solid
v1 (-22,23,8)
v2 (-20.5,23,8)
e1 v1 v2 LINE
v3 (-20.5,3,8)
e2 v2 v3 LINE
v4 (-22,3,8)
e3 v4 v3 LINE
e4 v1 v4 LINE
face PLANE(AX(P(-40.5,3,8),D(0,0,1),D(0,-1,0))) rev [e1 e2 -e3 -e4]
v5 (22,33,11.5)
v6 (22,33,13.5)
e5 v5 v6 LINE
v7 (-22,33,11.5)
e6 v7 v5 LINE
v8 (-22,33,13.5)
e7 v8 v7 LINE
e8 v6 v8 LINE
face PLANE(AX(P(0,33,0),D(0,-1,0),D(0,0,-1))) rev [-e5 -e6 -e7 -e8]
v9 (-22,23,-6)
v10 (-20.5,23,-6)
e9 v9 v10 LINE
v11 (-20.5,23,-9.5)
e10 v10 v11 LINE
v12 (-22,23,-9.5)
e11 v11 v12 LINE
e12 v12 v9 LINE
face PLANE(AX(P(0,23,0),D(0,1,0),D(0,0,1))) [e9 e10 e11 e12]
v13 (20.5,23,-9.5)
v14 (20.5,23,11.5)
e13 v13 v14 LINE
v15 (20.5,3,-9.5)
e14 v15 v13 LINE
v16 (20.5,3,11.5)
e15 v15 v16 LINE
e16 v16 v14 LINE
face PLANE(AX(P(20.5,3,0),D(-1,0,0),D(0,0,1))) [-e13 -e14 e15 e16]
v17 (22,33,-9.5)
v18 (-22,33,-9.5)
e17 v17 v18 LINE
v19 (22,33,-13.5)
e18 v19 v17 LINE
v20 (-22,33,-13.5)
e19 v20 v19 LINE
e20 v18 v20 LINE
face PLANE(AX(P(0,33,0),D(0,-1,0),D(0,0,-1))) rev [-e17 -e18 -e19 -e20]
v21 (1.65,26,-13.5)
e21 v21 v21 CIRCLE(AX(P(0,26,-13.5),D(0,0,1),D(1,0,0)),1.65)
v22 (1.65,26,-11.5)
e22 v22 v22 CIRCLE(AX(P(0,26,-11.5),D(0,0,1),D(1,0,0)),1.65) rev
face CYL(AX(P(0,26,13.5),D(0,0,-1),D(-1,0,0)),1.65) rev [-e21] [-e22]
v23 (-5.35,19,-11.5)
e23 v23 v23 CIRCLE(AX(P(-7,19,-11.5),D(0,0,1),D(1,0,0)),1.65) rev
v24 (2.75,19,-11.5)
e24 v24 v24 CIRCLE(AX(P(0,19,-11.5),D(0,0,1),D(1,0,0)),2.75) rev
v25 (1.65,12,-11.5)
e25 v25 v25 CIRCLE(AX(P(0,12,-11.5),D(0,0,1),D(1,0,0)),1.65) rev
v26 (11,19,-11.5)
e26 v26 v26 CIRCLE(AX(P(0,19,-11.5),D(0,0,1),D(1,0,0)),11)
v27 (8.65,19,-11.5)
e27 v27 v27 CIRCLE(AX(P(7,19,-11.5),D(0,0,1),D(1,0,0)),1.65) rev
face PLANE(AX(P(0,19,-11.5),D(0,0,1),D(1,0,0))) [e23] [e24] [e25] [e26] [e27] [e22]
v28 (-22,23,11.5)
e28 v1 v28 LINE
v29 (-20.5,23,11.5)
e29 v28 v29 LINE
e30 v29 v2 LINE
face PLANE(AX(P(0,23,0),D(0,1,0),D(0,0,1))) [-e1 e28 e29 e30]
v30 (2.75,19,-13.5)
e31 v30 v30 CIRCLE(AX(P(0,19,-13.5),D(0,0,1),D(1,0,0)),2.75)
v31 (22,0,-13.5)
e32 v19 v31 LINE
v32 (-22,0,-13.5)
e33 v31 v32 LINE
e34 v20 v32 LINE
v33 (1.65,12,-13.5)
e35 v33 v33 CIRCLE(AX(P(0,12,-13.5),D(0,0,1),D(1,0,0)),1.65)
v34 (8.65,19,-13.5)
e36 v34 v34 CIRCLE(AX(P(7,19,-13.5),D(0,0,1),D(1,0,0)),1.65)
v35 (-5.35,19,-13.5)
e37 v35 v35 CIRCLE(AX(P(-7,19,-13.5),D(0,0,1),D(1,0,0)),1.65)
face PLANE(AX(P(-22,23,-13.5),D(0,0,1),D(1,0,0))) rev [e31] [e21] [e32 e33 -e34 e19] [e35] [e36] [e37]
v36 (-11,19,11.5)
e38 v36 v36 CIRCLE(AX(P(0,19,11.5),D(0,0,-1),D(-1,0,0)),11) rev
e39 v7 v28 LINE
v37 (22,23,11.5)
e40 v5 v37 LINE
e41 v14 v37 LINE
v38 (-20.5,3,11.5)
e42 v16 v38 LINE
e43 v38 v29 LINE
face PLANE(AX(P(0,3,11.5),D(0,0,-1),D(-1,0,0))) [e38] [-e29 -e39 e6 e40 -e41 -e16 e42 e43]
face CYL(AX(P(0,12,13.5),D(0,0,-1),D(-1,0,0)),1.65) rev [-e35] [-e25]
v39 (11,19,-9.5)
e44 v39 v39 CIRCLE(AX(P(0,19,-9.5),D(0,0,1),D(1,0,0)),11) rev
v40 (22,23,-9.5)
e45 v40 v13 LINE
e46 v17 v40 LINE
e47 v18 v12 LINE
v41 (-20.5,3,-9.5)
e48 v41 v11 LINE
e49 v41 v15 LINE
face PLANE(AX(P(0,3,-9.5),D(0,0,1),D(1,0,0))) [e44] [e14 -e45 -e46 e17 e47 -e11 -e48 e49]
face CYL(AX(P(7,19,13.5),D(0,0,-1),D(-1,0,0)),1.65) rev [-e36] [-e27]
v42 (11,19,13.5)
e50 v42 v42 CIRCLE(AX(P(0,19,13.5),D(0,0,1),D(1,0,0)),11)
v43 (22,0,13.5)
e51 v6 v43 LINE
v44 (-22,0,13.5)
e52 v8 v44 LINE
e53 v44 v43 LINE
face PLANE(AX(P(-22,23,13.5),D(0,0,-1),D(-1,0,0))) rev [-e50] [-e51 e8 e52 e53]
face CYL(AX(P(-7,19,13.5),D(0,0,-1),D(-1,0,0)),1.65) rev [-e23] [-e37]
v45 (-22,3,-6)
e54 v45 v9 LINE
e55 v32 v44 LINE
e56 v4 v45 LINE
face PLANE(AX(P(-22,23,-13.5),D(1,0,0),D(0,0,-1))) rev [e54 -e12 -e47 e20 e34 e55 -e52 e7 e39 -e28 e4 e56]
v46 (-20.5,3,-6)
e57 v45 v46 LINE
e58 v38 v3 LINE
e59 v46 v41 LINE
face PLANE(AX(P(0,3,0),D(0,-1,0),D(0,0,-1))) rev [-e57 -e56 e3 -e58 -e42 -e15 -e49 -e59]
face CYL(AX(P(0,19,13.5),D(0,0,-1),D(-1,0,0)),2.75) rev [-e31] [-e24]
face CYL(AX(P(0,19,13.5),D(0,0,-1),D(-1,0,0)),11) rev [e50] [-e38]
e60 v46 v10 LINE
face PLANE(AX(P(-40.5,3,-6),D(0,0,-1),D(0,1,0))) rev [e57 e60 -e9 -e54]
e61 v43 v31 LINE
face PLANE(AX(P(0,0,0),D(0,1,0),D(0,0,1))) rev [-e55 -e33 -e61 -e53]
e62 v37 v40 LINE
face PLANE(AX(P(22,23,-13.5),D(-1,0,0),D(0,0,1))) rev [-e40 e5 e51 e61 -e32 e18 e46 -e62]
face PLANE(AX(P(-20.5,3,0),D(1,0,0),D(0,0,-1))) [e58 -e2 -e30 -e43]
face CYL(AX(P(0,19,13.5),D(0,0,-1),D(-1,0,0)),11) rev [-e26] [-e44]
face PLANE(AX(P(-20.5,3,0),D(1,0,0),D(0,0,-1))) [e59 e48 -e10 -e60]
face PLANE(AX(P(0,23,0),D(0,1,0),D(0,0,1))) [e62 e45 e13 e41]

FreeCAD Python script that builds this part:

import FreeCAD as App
import Part
import Sketcher
from FreeCAD import Vector
Q = App.Units.Quantity

doc = App.newDocument("Part")
body = doc.addObject("PartDesign::Body", "Body")

# Sketch on XZ plane
sketch1 = body.newObject("Sketcher::SketchObject", "Sketch")
sketch1.AttachmentSupport = (doc.getObject("XZ_Plane"), [""])
sketch1.MapMode = "FlatFace"
sketch1.addGeometry([
    Part.LineSegment(Vector(-22, -14, 0), Vector(-22, 14, 0)),
    Part.LineSegment(Vector(-22, 14, 0), Vector(22, 14, 0)),
    Part.LineSegment(Vector(22, 14, 0), Vector(22, -14, 0)),
    Part.LineSegment(Vector(22, -14, 0), Vector(-22, -14, 0)),
], False)
sketch1.addConstraint([
    Sketcher.Constraint("Coincident", 0, 2, 1, 1),
    Sketcher.Constraint("Coincident", 1, 2, 2, 1),
    Sketcher.Constraint("Coincident", 2, 2, 3, 1),
    Sketcher.Constraint("Coincident", 3, 2, 0, 1),
    Sketcher.Constraint("Vertical", 0),
    Sketcher.Constraint("Horizontal", 1),
    Sketcher.Constraint("Vertical", 2),
    Sketcher.Constraint("Horizontal", 3),
    Sketcher.Constraint("Symmetric", 0, 2, 2, 2, -1, 1),
    Sketcher.Constraint("DistanceX", 1, 1, 1, 2, Q("44 mm")),
    Sketcher.Constraint("DistanceY", 0, 1, 0, 2, Q("27 mm")),
])
pad1 = body.newObject("PartDesign::Pad", "Pad")
pad1.Profile = sketch1
pad1.Length = 23
pad1.Reversed = True

# Sketch on XZ plane
sketch2 = body.newObject("Sketcher::SketchObject", "Sketch001")
sketch2.AttachmentSupport = (doc.getObject("XZ_Plane"), [""])
sketch2.MapMode = "FlatFace"
sketch2.AttachmentOffset = App.Placement(Vector(0, 0, -23), App.Rotation())
sketch2.addGeometry([
    Part.LineSegment(Vector(-20, -10, 0), Vector(-20, 12, 0)),
    Part.LineSegment(Vector(-20, 12, 0), Vector(20, 12, 0)),
    Part.LineSegment(Vector(20, 12, 0), Vector(20, -10, 0)),
    Part.LineSegment(Vector(20, -10, 0), Vector(-20, -10, 0)),
], False)
sketch2.addConstraint([
    Sketcher.Constraint("Coincident", 0, 2, 1, 1),
    Sketcher.Constraint("Coincident", 1, 2, 2, 1),
    Sketcher.Constraint("Coincident", 2, 2, 3, 1),
    Sketcher.Constraint("Coincident", 3, 2, 0, 1),
    Sketcher.Constraint("Vertical", 0),
    Sketcher.Constraint("Horizontal", 1),
    Sketcher.Constraint("Vertical", 2),
    Sketcher.Constraint("Horizontal", 3),
    Sketcher.Constraint("DistanceX", 1, 1, 1, 2, Q("41 mm")),
    Sketcher.Constraint("DistanceY", 0, 1, 0, 2, Q("21 mm")),
    Sketcher.Constraint("DistanceX", 0, 2, -1, 1, Q("20.5 mm")),
    Sketcher.Constraint("DistanceY", -1, 1, 0, 2, Q("11.5 mm")),
])
pocket1 = body.newObject("PartDesign::Pocket", "Pocket")
pocket1.Profile = sketch2
pocket1.Length = 20
pocket1.Reversed = True

# Sketch on YZ plane
sketch3 = body.newObject("Sketcher::SketchObject", "Sketch002")
sketch3.AttachmentSupport = (doc.getObject("YZ_Plane"), [""])
sketch3.MapMode = "FlatFace"
sketch3.AttachmentOffset = App.Placement(Vector(0, 0, -20.5), App.Rotation())
sketch3.addGeometry([
    Part.LineSegment(Vector(23, 8, 0), Vector(3, 8, 0)),
    Part.LineSegment(Vector(3, 8, 0), Vector(3, -6, 0)),
    Part.LineSegment(Vector(3, -6, 0), Vector(23, -6, 0)),
    Part.LineSegment(Vector(23, -6, 0), Vector(23, 8, 0)),
], False)
sketch3.addConstraint([
    Sketcher.Constraint("Coincident", 0, 2, 1, 1),
    Sketcher.Constraint("Coincident", 1, 2, 2, 1),
    Sketcher.Constraint("Coincident", 2, 2, 3, 1),
    Sketcher.Constraint("Coincident", 3, 2, 0, 1),
    Sketcher.Constraint("Horizontal", 0),
    Sketcher.Constraint("Vertical", 1),
    Sketcher.Constraint("Horizontal", 2),
    Sketcher.Constraint("Vertical", 3),
    Sketcher.Constraint("DistanceX", 0, 2, 0, 1, Q("20 mm")),
    Sketcher.Constraint("DistanceY", 1, 2, 1, 1, Q("14 mm")),
    Sketcher.Constraint("DistanceX", -1, 1, 0, 2, Q("3 mm")),
    Sketcher.Constraint("DistanceY", -1, 1, 0, 2, Q("8 mm")),
])
pocket2 = body.newObject("PartDesign::Pocket", "Pocket001")
pocket2.Profile = sketch3
pocket2.Length = 20

# Sketch on XZ plane
sketch4 = body.newObject("Sketcher::SketchObject", "Sketch003")
sketch4.AttachmentSupport = (doc.getObject("XZ_Plane"), [""])
sketch4.MapMode = "FlatFace"
sketch4.AttachmentOffset = App.Placement(Vector(0, 0, -23), App.Rotation())
sketch4.addGeometry([
    Part.LineSegment(Vector(-22, -13.5, 0), Vector(-22, -9.5, 0)),  # 0
    Part.LineSegment(Vector(-22, -9.5, 0), Vector(22, -9.5, 0)),  # 1
    Part.LineSegment(Vector(22, -9.5, 0), Vector(22, -13.5, 0)),  # 2
    Part.LineSegment(Vector(22, -13.5, 0), Vector(-22, -13.5, 0)),  # 3
    Part.LineSegment(Vector(-22, 11.5, 0), Vector(-22, 13.5, 0)),  # 4
    Part.LineSegment(Vector(-22, 13.5, 0), Vector(22, 13.5, 0)),  # 5
    Part.LineSegment(Vector(22, 13.5, 0), Vector(22, 11.5, 0)),  # 6
    Part.LineSegment(Vector(22, 11.5, 0), Vector(-22, 11.5, 0)),  # 7
], False)
sketch4.addConstraint([
    Sketcher.Constraint("Coincident", 0, 2, 1, 1),
    Sketcher.Constraint("Coincident", 1, 2, 2, 1),
    Sketcher.Constraint("Coincident", 2, 2, 3, 1),
    Sketcher.Constraint("Coincident", 3, 2, 0, 1),
    Sketcher.Constraint("Coincident", 4, 2, 5, 1),
    Sketcher.Constraint("Coincident", 5, 2, 6, 1),
    Sketcher.Constraint("Coincident", 6, 2, 7, 1),
    Sketcher.Constraint("Coincident", 7, 2, 4, 1),
    Sketcher.Constraint("Vertical", 0),
    Sketcher.Constraint("Horizontal", 1),
    Sketcher.Constraint("Vertical", 2),
    Sketcher.Constraint("Horizontal", 3),
    Sketcher.Constraint("Vertical", 4),
    Sketcher.Constraint("Horizontal", 5),
    Sketcher.Constraint("Vertical", 6),
    Sketcher.Constraint("Horizontal", 7),
    Sketcher.Constraint("Symmetric", 2, 2, 4, 2, -1, 1),
    Sketcher.Constraint("Vertical", 3, 2, 4, 2),
    Sketcher.Constraint("Vertical", 2, 2, 5, 2),
    Sketcher.Constraint("DistanceX", 1, 1, 1, 2, Q("44 mm")),
    Sketcher.Constraint("DistanceY", 0, 1, 0, 2, Q("4 mm")),
    Sketcher.Constraint("DistanceY", 4, 1, 4, 2, Q("2 mm")),
    Sketcher.Constraint("DistanceY", 0, 2, 4, 2, Q("23 mm")),
])
pad2 = body.newObject("PartDesign::Pad", "Pad001")
pad2.Profile = sketch4
pad2.Length = 10
pad2.Reversed = True

# Sketch on XY plane
sketch5 = body.newObject("Sketcher::SketchObject", "Sketch004")
sketch5.AttachmentSupport = (doc.getObject("XY_Plane"), [""])
sketch5.MapMode = "FlatFace"
sketch5.AttachmentOffset = App.Placement(Vector(0, 0, -9.5), App.Rotation())
sketch5.addGeometry(Part.Circle(Vector(0, 19, 0), Vector(0, 0, 1), 11), False)
sketch5.addConstraint([
    Sketcher.Constraint("PointOnObject", 0, 3, -2),
    Sketcher.Constraint("Diameter", 0, Q("22 mm")),
    Sketcher.Constraint("DistanceY", -1, 1, 0, 3, Q("19 mm")),
])
pocket3 = body.newObject("PartDesign::Pocket", "Pocket002")
pocket3.Profile = sketch5
pocket3.Type = "TwoLengths"
pocket3.Length = 42.895704
pocket3.Length2 = 2
pocket3.Reversed = True

# Sketch on XY plane
sketch6 = body.newObject("Sketcher::SketchObject", "Sketch005")
sketch6.AttachmentSupport = (doc.getObject("XY_Plane"), [""])
sketch6.MapMode = "FlatFace"
sketch6.addGeometry([
    Part.Circle(Vector(-7, 19, 0), Vector(0, 0, 1), 1.6),  # 0
    Part.Circle(Vector(0, 19, 0), Vector(0, 0, 1), 2.8),  # 1
    Part.Circle(Vector(0, 26, 0), Vector(0, 0, 1), 1.6),  # 2
    Part.Circle(Vector(7, 19, 0), Vector(0, 0, 1), 1.6),  # 3
    Part.Circle(Vector(0, 12, 0), Vector(0, 0, 1), 1.6),  # 4
], False)
sketch6.addConstraint([
    Sketcher.Constraint("Equal", 0, 2),
    Sketcher.Constraint("Equal", 2, 3),
    Sketcher.Constraint("Equal", 3, 4),
    Sketcher.Constraint("Symmetric", 0, 3, 3, 3, -2),
    Sketcher.Constraint("PointOnObject", 1, 3, -2),
    Sketcher.Constraint("PointOnObject", 2, 3, -2),
    Sketcher.Constraint("PointOnObject", 4, 3, -2),
    Sketcher.Constraint("Horizontal", 0, 3, 1, 3),
    Sketcher.Constraint("Diameter", 0, Q("3.3 mm")),
    Sketcher.Constraint("Diameter", 1, Q("5.5 mm")),
    Sketcher.Constraint("DistanceX", 0, 3, -1, 1, Q("7 mm")),
    Sketcher.Constraint("DistanceY", -1, 1, 0, 3, Q("19 mm")),
    Sketcher.Constraint("DistanceY", -1, 1, 2, 3, Q("26 mm")),
    Sketcher.Constraint("DistanceY", -1, 1, 4, 3, Q("12 mm")),
])
pocket4 = body.newObject("PartDesign::Pocket", "Pocket003")
pocket4.Profile = sketch6
pocket4.Type = "ThroughAll"
pocket4.Midplane = True

doc.recompute()
